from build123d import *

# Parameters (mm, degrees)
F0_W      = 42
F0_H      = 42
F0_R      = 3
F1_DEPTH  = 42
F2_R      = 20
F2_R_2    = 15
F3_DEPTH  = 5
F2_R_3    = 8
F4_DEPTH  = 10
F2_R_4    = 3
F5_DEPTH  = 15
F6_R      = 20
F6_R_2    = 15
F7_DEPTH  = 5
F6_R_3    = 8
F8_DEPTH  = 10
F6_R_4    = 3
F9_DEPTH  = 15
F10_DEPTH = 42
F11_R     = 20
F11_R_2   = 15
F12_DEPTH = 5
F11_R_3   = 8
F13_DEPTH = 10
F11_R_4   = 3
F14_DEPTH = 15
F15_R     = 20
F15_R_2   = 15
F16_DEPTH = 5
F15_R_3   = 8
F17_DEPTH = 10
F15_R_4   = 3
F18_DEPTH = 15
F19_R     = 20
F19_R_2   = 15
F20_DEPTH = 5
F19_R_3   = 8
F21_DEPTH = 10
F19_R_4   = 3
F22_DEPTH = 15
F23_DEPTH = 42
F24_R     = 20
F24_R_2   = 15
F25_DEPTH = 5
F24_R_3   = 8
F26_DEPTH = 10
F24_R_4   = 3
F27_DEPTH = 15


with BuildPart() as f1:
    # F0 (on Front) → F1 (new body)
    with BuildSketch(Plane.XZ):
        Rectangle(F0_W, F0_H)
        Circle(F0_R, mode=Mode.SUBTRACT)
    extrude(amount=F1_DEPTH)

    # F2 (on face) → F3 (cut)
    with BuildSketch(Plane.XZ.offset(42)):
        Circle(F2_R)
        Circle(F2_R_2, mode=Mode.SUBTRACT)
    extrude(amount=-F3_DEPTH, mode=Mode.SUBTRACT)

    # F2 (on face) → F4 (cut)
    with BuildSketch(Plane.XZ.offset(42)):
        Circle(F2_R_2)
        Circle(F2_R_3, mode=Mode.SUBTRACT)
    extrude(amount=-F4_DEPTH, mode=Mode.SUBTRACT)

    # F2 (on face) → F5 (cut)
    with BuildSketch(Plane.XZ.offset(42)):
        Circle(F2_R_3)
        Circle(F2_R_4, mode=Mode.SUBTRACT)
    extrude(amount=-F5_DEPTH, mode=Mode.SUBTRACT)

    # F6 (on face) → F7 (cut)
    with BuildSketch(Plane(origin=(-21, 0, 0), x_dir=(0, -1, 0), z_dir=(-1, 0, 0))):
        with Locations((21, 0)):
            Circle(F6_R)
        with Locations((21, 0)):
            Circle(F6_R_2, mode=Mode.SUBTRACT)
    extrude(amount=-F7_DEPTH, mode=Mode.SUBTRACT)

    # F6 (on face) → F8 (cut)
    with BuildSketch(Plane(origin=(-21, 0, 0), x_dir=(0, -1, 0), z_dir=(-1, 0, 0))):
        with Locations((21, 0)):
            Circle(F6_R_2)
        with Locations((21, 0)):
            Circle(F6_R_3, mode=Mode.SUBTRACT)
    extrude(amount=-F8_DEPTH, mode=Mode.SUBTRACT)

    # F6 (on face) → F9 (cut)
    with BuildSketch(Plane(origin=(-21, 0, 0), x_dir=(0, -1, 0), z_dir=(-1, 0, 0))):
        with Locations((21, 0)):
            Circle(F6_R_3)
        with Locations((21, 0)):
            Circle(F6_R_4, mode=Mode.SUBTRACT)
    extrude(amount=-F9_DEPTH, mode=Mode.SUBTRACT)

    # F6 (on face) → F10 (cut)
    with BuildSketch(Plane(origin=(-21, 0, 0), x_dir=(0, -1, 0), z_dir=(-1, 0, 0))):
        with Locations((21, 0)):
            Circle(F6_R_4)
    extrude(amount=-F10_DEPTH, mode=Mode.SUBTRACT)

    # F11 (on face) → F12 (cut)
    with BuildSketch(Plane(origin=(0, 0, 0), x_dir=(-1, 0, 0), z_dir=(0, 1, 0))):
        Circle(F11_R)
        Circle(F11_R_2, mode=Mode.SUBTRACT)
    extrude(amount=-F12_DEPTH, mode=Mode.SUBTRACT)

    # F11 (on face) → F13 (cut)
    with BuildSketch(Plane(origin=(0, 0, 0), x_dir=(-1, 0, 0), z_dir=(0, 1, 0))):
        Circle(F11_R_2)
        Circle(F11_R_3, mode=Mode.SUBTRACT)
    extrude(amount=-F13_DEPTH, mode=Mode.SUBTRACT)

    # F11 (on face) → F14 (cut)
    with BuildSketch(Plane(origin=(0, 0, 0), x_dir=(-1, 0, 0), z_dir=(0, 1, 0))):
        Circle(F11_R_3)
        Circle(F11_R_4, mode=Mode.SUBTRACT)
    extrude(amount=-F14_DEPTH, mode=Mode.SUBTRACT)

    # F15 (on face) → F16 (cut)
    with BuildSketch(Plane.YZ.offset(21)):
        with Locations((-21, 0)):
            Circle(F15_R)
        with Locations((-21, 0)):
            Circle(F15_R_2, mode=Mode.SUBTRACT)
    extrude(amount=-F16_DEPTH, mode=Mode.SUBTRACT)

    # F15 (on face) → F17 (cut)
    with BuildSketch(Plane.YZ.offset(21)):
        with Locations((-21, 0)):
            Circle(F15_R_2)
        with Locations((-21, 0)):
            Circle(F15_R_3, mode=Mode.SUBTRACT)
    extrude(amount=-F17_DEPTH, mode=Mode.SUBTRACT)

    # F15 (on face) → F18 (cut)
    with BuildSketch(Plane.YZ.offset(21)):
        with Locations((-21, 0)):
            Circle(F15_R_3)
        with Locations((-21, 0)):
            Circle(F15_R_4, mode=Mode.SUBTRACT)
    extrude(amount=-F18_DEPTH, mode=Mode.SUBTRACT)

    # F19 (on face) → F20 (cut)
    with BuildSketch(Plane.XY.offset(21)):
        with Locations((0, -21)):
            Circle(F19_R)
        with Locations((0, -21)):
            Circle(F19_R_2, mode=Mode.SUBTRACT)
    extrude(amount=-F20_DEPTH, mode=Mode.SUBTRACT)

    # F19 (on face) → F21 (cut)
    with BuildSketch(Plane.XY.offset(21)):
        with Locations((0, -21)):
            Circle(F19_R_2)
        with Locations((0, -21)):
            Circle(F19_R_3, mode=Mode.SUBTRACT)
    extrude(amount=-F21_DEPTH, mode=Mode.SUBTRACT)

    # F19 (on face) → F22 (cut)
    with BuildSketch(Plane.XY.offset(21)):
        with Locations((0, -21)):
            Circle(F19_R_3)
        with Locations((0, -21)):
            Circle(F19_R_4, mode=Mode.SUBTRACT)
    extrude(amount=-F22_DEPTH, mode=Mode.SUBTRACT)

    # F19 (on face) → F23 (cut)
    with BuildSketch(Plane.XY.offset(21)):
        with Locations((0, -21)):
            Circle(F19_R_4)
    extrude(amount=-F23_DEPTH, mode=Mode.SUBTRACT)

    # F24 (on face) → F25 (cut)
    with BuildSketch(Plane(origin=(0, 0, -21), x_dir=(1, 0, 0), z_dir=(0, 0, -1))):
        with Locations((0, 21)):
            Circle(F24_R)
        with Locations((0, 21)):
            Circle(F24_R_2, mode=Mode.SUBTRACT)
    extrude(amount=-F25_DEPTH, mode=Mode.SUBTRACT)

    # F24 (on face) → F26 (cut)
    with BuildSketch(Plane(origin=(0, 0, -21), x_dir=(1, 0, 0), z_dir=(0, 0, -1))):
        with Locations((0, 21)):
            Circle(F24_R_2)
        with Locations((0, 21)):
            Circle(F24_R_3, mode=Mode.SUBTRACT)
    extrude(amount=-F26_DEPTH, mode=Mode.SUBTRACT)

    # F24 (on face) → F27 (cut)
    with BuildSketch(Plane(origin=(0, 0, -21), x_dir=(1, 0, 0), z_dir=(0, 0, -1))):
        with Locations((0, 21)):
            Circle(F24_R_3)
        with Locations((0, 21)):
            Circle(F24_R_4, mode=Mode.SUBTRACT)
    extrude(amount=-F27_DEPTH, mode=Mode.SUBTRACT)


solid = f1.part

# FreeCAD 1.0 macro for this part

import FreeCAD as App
import Part
import Sketcher

V = App.Vector

doc = App.newDocument("Part")
body = doc.addObject("PartDesign::Body", "Body")

sketch1 = doc.addObject("Sketcher::SketchObject", "Sketch")
body.addObject(sketch1)
sketch1.AttachmentSupport = (doc.XZ_Plane, [""])
sketch1.MapMode = "FlatFace"
sketch1.addGeometry([
    Part.LineSegment(V(-21, 21, 0), V(-21, -21, 0)),
    Part.LineSegment(V(-21, -21, 0), V(21, -21, 0)),
    Part.LineSegment(V(21, -21, 0), V(21, 21, 0)),
    Part.LineSegment(V(21, 21, 0), V(-21, 21, 0)),
    Part.Circle(V(0, 0, 0), V(0, 0, 1), 3),
], False)
sketch1.addConstraint([
    Sketcher.Constraint("Coincident", 0, 2, 1, 1),
    Sketcher.Constraint("Coincident", 1, 2, 2, 1),
    Sketcher.Constraint("Coincident", 2, 2, 3, 1),
    Sketcher.Constraint("Coincident", 3, 2, 0, 1),
    Sketcher.Constraint("Vertical", 0),
    Sketcher.Constraint("Horizontal", 1),
    Sketcher.Constraint("Vertical", 2),
    Sketcher.Constraint("Horizontal", 3),
    Sketcher.Constraint("Coincident", 4, 3, -1, 1),
    Sketcher.Constraint("Symmetric", 0, 2, 2, 2, -1, 1),
    Sketcher.Constraint("Equal", 3, 0),
    Sketcher.Constraint("Diameter", 4, 6.0),
    Sketcher.Constraint("DistanceX", 1, 1, 1, 2, 42.0),
])
pad1 = doc.addObject("PartDesign::Pad", "Pad")
body.addObject(pad1)
pad1.Profile = sketch1
pad1.Length = 42

sketch2 = doc.addObject("Sketcher::SketchObject", "Sketch001")
body.addObject(sketch2)
sketch2.AttachmentSupport = (doc.XZ_Plane, [""])
sketch2.MapMode = "FlatFace"
sketch2.AttachmentOffset = App.Placement(V(0, 0, 42), App.Rotation())
sketch2.addGeometry([
    Part.Circle(V(0, 0, 0), V(0, 0, 1), 20),
    Part.Circle(V(0, 0, 0), V(0, 0, 1), 15),
], False)
sketch2.addConstraint([
    Sketcher.Constraint("Coincident", 0, 3, -1, 1),
    Sketcher.Constraint("Coincident", 1, 3, -1, 1),
    Sketcher.Constraint("Diameter", 0, 40.0),
    Sketcher.Constraint("Diameter", 1, 30.0),
])
pocket1 = doc.addObject("PartDesign::Pocket", "Pocket")
body.addObject(pocket1)
pocket1.Profile = sketch2
pocket1.Length = 5

sketch3 = doc.addObject("Sketcher::SketchObject", "Sketch002")
body.addObject(sketch3)
sketch3.AttachmentSupport = (doc.XZ_Plane, [""])
sketch3.MapMode = "FlatFace"
sketch3.AttachmentOffset = App.Placement(V(0, 0, 42), App.Rotation())
sketch3.addGeometry([
    Part.Circle(V(0, 0, 0), V(0, 0, 1), 15),
    Part.Circle(V(0, 0, 0), V(0, 0, 1), 8),
], False)
sketch3.addConstraint([
    Sketcher.Constraint("Coincident", 0, 3, -1, 1),
    Sketcher.Constraint("Coincident", 1, 3, -1, 1),
    Sketcher.Constraint("Diameter", 0, 30.0),
    Sketcher.Constraint("Diameter", 1, 16.0),
])
pocket2 = doc.addObject("PartDesign::Pocket", "Pocket001")
body.addObject(pocket2)
pocket2.Profile = sketch3
pocket2.Length = 10

sketch4 = doc.addObject("Sketcher::SketchObject", "Sketch003")
body.addObject(sketch4)
sketch4.AttachmentSupport = (doc.XZ_Plane, [""])
sketch4.MapMode = "FlatFace"
sketch4.AttachmentOffset = App.Placement(V(0, 0, 42), App.Rotation())
sketch4.addGeometry([
    Part.Circle(V(0, 0, 0), V(0, 0, 1), 8),
    Part.Circle(V(0, 0, 0), V(0, 0, 1), 3),
], False)
sketch4.addConstraint([
    Sketcher.Constraint("Coincident", 0, 3, -1, 1),
    Sketcher.Constraint("Coincident", 1, 3, -1, 1),
    Sketcher.Constraint("Diameter", 0, 16.0),
    Sketcher.Constraint("Diameter", 1, 6.0),
])
pocket3 = doc.addObject("PartDesign::Pocket", "Pocket002")
body.addObject(pocket3)
pocket3.Profile = sketch4
pocket3.Length = 15

sketch5 = doc.addObject("Sketcher::SketchObject", "Sketch004")
body.addObject(sketch5)
sketch5.AttachmentSupport = (doc.YZ_Plane, [""])
sketch5.MapMode = "FlatFace"
sketch5.AttachmentOffset = App.Placement(V(0, 0, -21), App.Rotation())
sketch5.addGeometry([
    Part.Circle(V(-21, 0, 0), V(0, 0, 1), 20),
    Part.Circle(V(-21, 0, 0), V(0, 0, 1), 15),
], False)
sketch5.addConstraint([
    Sketcher.Constraint("Coincident", 1, 3, 0, 3),
    Sketcher.Constraint("PointOnObject", 0, 3, -1),
    Sketcher.Constraint("Diameter", 0, 40.0),
    Sketcher.Constraint("Diameter", 1, 30.0),
    Sketcher.Constraint("DistanceX", 0, 3, -1, 1, 21.0),
])
pocket4 = doc.addObject("PartDesign::Pocket", "Pocket003")
body.addObject(pocket4)
pocket4.Profile = sketch5
pocket4.Length = 5
pocket4.Reversed = True

sketch6 = doc.addObject("Sketcher::SketchObject", "Sketch005")
body.addObject(sketch6)
sketch6.AttachmentSupport = (doc.YZ_Plane, [""])
sketch6.MapMode = "FlatFace"
sketch6.AttachmentOffset = App.Placement(V(0, 0, -21), App.Rotation())
sketch6.addGeometry([
    Part.Circle(V(-21, 0, 0), V(0, 0, 1), 15),
    Part.Circle(V(-21, 0, 0), V(0, 0, 1), 8),
], False)
sketch6.addConstraint([
    Sketcher.Constraint("Coincident", 1, 3, 0, 3),
    Sketcher.Constraint("PointOnObject", 0, 3, -1),
    Sketcher.Constraint("Diameter", 0, 30.0),
    Sketcher.Constraint("Diameter", 1, 16.0),
    Sketcher.Constraint("DistanceX", 0, 3, -1, 1, 21.0),
])
pocket5 = doc.addObject("PartDesign::Pocket", "Pocket004")
body.addObject(pocket5)
pocket5.Profile = sketch6
pocket5.Length = 10
pocket5.Reversed = True

sketch7 = doc.addObject("Sketcher::SketchObject", "Sketch006")
body.addObject(sketch7)
sketch7.AttachmentSupport = (doc.YZ_Plane, [""])
sketch7.MapMode = "FlatFace"
sketch7.AttachmentOffset = App.Placement(V(0, 0, -21), App.Rotation())
sketch7.addGeometry([
    Part.Circle(V(-21, 0, 0), V(0, 0, 1), 8),
    Part.Circle(V(-21, 0, 0), V(0, 0, 1), 3),
], False)
sketch7.addConstraint([
    Sketcher.Constraint("Coincident", 1, 3, 0, 3),
    Sketcher.Constraint("PointOnObject", 0, 3, -1),
    Sketcher.Constraint("Diameter", 0, 16.0),
    Sketcher.Constraint("Diameter", 1, 6.0),
    Sketcher.Constraint("DistanceX", 0, 3, -1, 1, 21.0),
])
pocket6 = doc.addObject("PartDesign::Pocket", "Pocket005")
body.addObject(pocket6)
pocket6.Profile = sketch7
pocket6.Length = 15
pocket6.Reversed = True

sketch8 = doc.addObject("Sketcher::SketchObject", "Sketch007")
body.addObject(sketch8)
sketch8.AttachmentSupport = (doc.YZ_Plane, [""])
sketch8.MapMode = "FlatFace"
sketch8.AttachmentOffset = App.Placement(V(0, 0, -21), App.Rotation())
sketch8.addGeometry(Part.Circle(V(-21, 0, 0), V(0, 0, 1), 3), False)
sketch8.addConstraint([
    Sketcher.Constraint("PointOnObject", 0, 3, -1),
    Sketcher.Constraint("Diameter", 0, 6.0),
    Sketcher.Constraint("DistanceX", 0, 3, -1, 1, 21.0),
])
pocket7 = doc.addObject("PartDesign::Pocket", "Pocket006")
body.addObject(pocket7)
pocket7.Profile = sketch8
pocket7.Length = 42
pocket7.Reversed = True

sketch9 = doc.addObject("Sketcher::SketchObject", "Sketch008")
body.addObject(sketch9)
sketch9.AttachmentSupport = (doc.XZ_Plane, [""])
sketch9.MapMode = "FlatFace"
sketch9.addGeometry([
    Part.Circle(V(0, 0, 0), V(0, 0, 1), 20),
    Part.Circle(V(0, 0, 0), V(0, 0, 1), 15),
], False)
sketch9.addConstraint([
    Sketcher.Constraint("Coincident", 0, 3, -1, 1),
    Sketcher.Constraint("Coincident", 1, 3, -1, 1),
    Sketcher.Constraint("Diameter", 0, 40.0),
    Sketcher.Constraint("Diameter", 1, 30.0),
])
pocket8 = doc.addObject("PartDesign::Pocket", "Pocket007")
body.addObject(pocket8)
pocket8.Profile = sketch9
pocket8.Length = 5
pocket8.Reversed = True

sketch10 = doc.addObject("Sketcher::SketchObject", "Sketch009")
body.addObject(sketch10)
sketch10.AttachmentSupport = (doc.XZ_Plane, [""])
sketch10.MapMode = "FlatFace"
sketch10.addGeometry([
    Part.Circle(V(0, 0, 0), V(0, 0, 1), 15),
    Part.Circle(V(0, 0, 0), V(0, 0, 1), 8),
], False)
sketch10.addConstraint([
    Sketcher.Constraint("Coincident", 0, 3, -1, 1),
    Sketcher.Constraint("Coincident", 1, 3, -1, 1),
    Sketcher.Constraint("Diameter", 0, 30.0),
    Sketcher.Constraint("Diameter", 1, 16.0),
])
pocket9 = doc.addObject("PartDesign::Pocket", "Pocket008")
body.addObject(pocket9)
pocket9.Profile = sketch10
pocket9.Length = 10
pocket9.Reversed = True

sketch11 = doc.addObject("Sketcher::SketchObject", "Sketch010")
body.addObject(sketch11)
sketch11.AttachmentSupport = (doc.XZ_Plane, [""])
sketch11.MapMode = "FlatFace"
sketch11.addGeometry([
    Part.Circle(V(0, 0, 0), V(0, 0, 1), 8),
    Part.Circle(V(0, 0, 0), V(0, 0, 1), 3),
], False)
sketch11.addConstraint([
    Sketcher.Constraint("Coincident", 0, 3, -1, 1),
    Sketcher.Constraint("Coincident", 1, 3, -1, 1),
    Sketcher.Constraint("Diameter", 0, 16.0),
    Sketcher.Constraint("Diameter", 1, 6.0),
])
pocket10 = doc.addObject("PartDesign::Pocket", "Pocket009")
body.addObject(pocket10)
pocket10.Profile = sketch11
pocket10.Length = 15
pocket10.Reversed = True

sketch12 = doc.addObject("Sketcher::SketchObject", "Sketch011")
body.addObject(sketch12)
sketch12.AttachmentSupport = (doc.YZ_Plane, [""])
sketch12.MapMode = "FlatFace"
sketch12.AttachmentOffset = App.Placement(V(0, 0, 21), App.Rotation())
sketch12.addGeometry([
    Part.Circle(V(-21, 0, 0), V(0, 0, 1), 20),
    Part.Circle(V(-21, 0, 0), V(0, 0, 1), 15),
], False)
sketch12.addConstraint([
    Sketcher.Constraint("Coincident", 1, 3, 0, 3),
    Sketcher.Constraint("PointOnObject", 0, 3, -1),
    Sketcher.Constraint("Diameter", 0, 40.0),
    Sketcher.Constraint("Diameter", 1, 30.0),
    Sketcher.Constraint("DistanceX", 0, 3, -1, 1, 21.0),
])
pocket11 = doc.addObject("PartDesign::Pocket", "Pocket010")
body.addObject(pocket11)
pocket11.Profile = sketch12
pocket11.Length = 5

sketch13 = doc.addObject("Sketcher::SketchObject", "Sketch012")
body.addObject(sketch13)
sketch13.AttachmentSupport = (doc.YZ_Plane, [""])
sketch13.MapMode = "FlatFace"
sketch13.AttachmentOffset = App.Placement(V(0, 0, 21), App.Rotation())
sketch13.addGeometry([
    Part.Circle(V(-21, 0, 0), V(0, 0, 1), 15),
    Part.Circle(V(-21, 0, 0), V(0, 0, 1), 8),
], False)
sketch13.addConstraint([
    Sketcher.Constraint("Coincident", 1, 3, 0, 3),
    Sketcher.Constraint("PointOnObject", 0, 3, -1),
    Sketcher.Constraint("Diameter", 0, 30.0),
    Sketcher.Constraint("Diameter", 1, 16.0),
    Sketcher.Constraint("DistanceX", 0, 3, -1, 1, 21.0),
])
pocket12 = doc.addObject("PartDesign::Pocket", "Pocket011")
body.addObject(pocket12)
pocket12.Profile = sketch13
pocket12.Length = 10

sketch14 = doc.addObject("Sketcher::SketchObject", "Sketch013")
body.addObject(sketch14)
sketch14.AttachmentSupport = (doc.YZ_Plane, [""])
sketch14.MapMode = "FlatFace"
sketch14.AttachmentOffset = App.Placement(V(0, 0, 21), App.Rotation())
sketch14.addGeometry([
    Part.Circle(V(-21, 0, 0), V(0, 0, 1), 8),
    Part.Circle(V(-21, 0, 0), V(0, 0, 1), 3),
], False)
sketch14.addConstraint([
    Sketcher.Constraint("Coincident", 1, 3, 0, 3),
    Sketcher.Constraint("PointOnObject", 0, 3, -1),
    Sketcher.Constraint("Diameter", 0, 16.0),
    Sketcher.Constraint("Diameter", 1, 6.0),
    Sketcher.Constraint("DistanceX", 0, 3, -1, 1, 21.0),
])
pocket13 = doc.addObject("PartDesign::Pocket", "Pocket012")
body.addObject(pocket13)
pocket13.Profile = sketch14
pocket13.Length = 15

sketch15 = doc.addObject("Sketcher::SketchObject", "Sketch014")
body.addObject(sketch15)
sketch15.AttachmentSupport = (doc.XY_Plane, [""])
sketch15.MapMode = "FlatFace"
sketch15.AttachmentOffset = App.Placement(V(0, 0, 21), App.Rotation())
sketch15.addGeometry([
    Part.Circle(V(0, -21, 0), V(0, 0, 1), 20),
    Part.Circle(V(0, -21, 0), V(0, 0, 1), 15),
], False)
sketch15.addConstraint([
    Sketcher.Constraint("Coincident", 1, 3, 0, 3),
    Sketcher.Constraint("PointOnObject", 0, 3, -2),
    Sketcher.Constraint("Diameter", 0, 40.0),
    Sketcher.Constraint("Diameter", 1, 30.0),
    Sketcher.Constraint("DistanceY", 0, 3, -1, 1, 21.0),
])
pocket14 = doc.addObject("PartDesign::Pocket", "Pocket013")
body.addObject(pocket14)
pocket14.Profile = sketch15
pocket14.Length = 5

sketch16 = doc.addObject("Sketcher::SketchObject", "Sketch015")
body.addObject(sketch16)
sketch16.AttachmentSupport = (doc.XY_Plane, [""])
sketch16.MapMode = "FlatFace"
sketch16.AttachmentOffset = App.Placement(V(0, 0, 21), App.Rotation())
sketch16.addGeometry([
    Part.Circle(V(0, -21, 0), V(0, 0, 1), 15),
    Part.Circle(V(0, -21, 0), V(0, 0, 1), 8),
], False)
sketch16.addConstraint([
    Sketcher.Constraint("Coincident", 1, 3, 0, 3),
    Sketcher.Constraint("PointOnObject", 0, 3, -2),
    Sketcher.Constraint("Diameter", 0, 30.0),
    Sketcher.Constraint("Diameter", 1, 16.0),
    Sketcher.Constraint("DistanceY", 0, 3, -1, 1, 21.0),
])
pocket15 = doc.addObject("PartDesign::Pocket", "Pocket014")
body.addObject(pocket15)
pocket15.Profile = sketch16
pocket15.Length = 10

sketch17 = doc.addObject("Sketcher::SketchObject", "Sketch016")
body.addObject(sketch17)
sketch17.AttachmentSupport = (doc.XY_Plane, [""])
sketch17.MapMode = "FlatFace"
sketch17.AttachmentOffset = App.Placement(V(0, 0, 21), App.Rotation())
sketch17.addGeometry([
    Part.Circle(V(0, -21, 0), V(0, 0, 1), 8),
    Part.Circle(V(0, -21, 0), V(0, 0, 1), 3),
], False)
sketch17.addConstraint([
    Sketcher.Constraint("Coincident", 1, 3, 0, 3),
    Sketcher.Constraint("PointOnObject", 0, 3, -2),
    Sketcher.Constraint("Diameter", 0, 16.0),
    Sketcher.Constraint("Diameter", 1, 6.0),
    Sketcher.Constraint("DistanceY", 0, 3, -1, 1, 21.0),
])
pocket16 = doc.addObject("PartDesign::Pocket", "Pocket015")
body.addObject(pocket16)
pocket16.Profile = sketch17
pocket16.Length = 15

sketch18 = doc.addObject("Sketcher::SketchObject", "Sketch017")
body.addObject(sketch18)
sketch18.AttachmentSupport = (doc.XY_Plane, [""])
sketch18.MapMode = "FlatFace"
sketch18.AttachmentOffset = App.Placement(V(0, 0, 21), App.Rotation())
sketch18.addGeometry(Part.Circle(V(0, -21, 0), V(0, 0, 1), 3), False)
sketch18.addConstraint([
    Sketcher.Constraint("PointOnObject", 0, 3, -2),
    Sketcher.Constraint("Diameter", 0, 6.0),
    Sketcher.Constraint("DistanceY", 0, 3, -1, 1, 21.0),
])
pocket17 = doc.addObject("PartDesign::Pocket", "Pocket016")
body.addObject(pocket17)
pocket17.Profile = sketch18
pocket17.Length = 42

sketch19 = doc.addObject("Sketcher::SketchObject", "Sketch018")
body.addObject(sketch19)
sketch19.AttachmentSupport = (doc.XY_Plane, [""])
sketch19.MapMode = "FlatFace"
sketch19.AttachmentOffset = App.Placement(V(0, 0, -21), App.Rotation())
sketch19.addGeometry([
    Part.Circle(V(0, -21, 0), V(0, 0, 1), 20),
    Part.Circle(V(0, -21, 0), V(0, 0, 1), 15),
], False)
sketch19.addConstraint([
    Sketcher.Constraint("Coincident", 1, 3, 0, 3),
    Sketcher.Constraint("PointOnObject", 0, 3, -2),
    Sketcher.Constraint("Diameter", 0, 40.0),
    Sketcher.Constraint("Diameter", 1, 30.0),
    Sketcher.Constraint("DistanceY", 0, 3, -1, 1, 21.0),
])
pocket18 = doc.addObject("PartDesign::Pocket", "Pocket017")
body.addObject(pocket18)
pocket18.Profile = sketch19
pocket18.Length = 5
pocket18.Reversed = True

sketch20 = doc.addObject("Sketcher::SketchObject", "Sketch019")
body.addObject(sketch20)
sketch20.AttachmentSupport = (doc.XY_Plane, [""])
sketch20.MapMode = "FlatFace"
sketch20.AttachmentOffset = App.Placement(V(0, 0, -21), App.Rotation())
sketch20.addGeometry([
    Part.Circle(V(0, -21, 0), V(0, 0, 1), 15),
    Part.Circle(V(0, -21, 0), V(0, 0, 1), 8),
], False)
sketch20.addConstraint([
    Sketcher.Constraint("Coincident", 1, 3, 0, 3),
    Sketcher.Constraint("PointOnObject", 0, 3, -2),
    Sketcher.Constraint("Diameter", 0, 30.0),
    Sketcher.Constraint("Diameter", 1, 16.0),
    Sketcher.Constraint("DistanceY", 0, 3, -1, 1, 21.0),
])
pocket19 = doc.addObject("PartDesign::Pocket", "Pocket018")
body.addObject(pocket19)
pocket19.Profile = sketch20
pocket19.Length = 10
pocket19.Reversed = True

sketch21 = doc.addObject("Sketcher::SketchObject", "Sketch020")
body.addObject(sketch21)
sketch21.AttachmentSupport = (doc.XY_Plane, [""])
sketch21.MapMode = "FlatFace"
sketch21.AttachmentOffset = App.Placement(V(0, 0, -21), App.Rotation())
sketch21.addGeometry([
    Part.Circle(V(0, -21, 0), V(0, 0, 1), 8),
    Part.Circle(V(0, -21, 0), V(0, 0, 1), 3),
], False)
sketch21.addConstraint([
    Sketcher.Constraint("Coincident", 1, 3, 0, 3),
    Sketcher.Constraint("PointOnObject", 0, 3, -2),
    Sketcher.Constraint("Diameter", 0, 16.0),
    Sketcher.Constraint("Diameter", 1, 6.0),
    Sketcher.Constraint("DistanceY", 0, 3, -1, 1, 21.0),
])
pocket20 = doc.addObject("PartDesign::Pocket", "Pocket019")
body.addObject(pocket20)
pocket20.Profile = sketch21
pocket20.Length = 15
pocket20.Reversed = True

doc.recompute()
